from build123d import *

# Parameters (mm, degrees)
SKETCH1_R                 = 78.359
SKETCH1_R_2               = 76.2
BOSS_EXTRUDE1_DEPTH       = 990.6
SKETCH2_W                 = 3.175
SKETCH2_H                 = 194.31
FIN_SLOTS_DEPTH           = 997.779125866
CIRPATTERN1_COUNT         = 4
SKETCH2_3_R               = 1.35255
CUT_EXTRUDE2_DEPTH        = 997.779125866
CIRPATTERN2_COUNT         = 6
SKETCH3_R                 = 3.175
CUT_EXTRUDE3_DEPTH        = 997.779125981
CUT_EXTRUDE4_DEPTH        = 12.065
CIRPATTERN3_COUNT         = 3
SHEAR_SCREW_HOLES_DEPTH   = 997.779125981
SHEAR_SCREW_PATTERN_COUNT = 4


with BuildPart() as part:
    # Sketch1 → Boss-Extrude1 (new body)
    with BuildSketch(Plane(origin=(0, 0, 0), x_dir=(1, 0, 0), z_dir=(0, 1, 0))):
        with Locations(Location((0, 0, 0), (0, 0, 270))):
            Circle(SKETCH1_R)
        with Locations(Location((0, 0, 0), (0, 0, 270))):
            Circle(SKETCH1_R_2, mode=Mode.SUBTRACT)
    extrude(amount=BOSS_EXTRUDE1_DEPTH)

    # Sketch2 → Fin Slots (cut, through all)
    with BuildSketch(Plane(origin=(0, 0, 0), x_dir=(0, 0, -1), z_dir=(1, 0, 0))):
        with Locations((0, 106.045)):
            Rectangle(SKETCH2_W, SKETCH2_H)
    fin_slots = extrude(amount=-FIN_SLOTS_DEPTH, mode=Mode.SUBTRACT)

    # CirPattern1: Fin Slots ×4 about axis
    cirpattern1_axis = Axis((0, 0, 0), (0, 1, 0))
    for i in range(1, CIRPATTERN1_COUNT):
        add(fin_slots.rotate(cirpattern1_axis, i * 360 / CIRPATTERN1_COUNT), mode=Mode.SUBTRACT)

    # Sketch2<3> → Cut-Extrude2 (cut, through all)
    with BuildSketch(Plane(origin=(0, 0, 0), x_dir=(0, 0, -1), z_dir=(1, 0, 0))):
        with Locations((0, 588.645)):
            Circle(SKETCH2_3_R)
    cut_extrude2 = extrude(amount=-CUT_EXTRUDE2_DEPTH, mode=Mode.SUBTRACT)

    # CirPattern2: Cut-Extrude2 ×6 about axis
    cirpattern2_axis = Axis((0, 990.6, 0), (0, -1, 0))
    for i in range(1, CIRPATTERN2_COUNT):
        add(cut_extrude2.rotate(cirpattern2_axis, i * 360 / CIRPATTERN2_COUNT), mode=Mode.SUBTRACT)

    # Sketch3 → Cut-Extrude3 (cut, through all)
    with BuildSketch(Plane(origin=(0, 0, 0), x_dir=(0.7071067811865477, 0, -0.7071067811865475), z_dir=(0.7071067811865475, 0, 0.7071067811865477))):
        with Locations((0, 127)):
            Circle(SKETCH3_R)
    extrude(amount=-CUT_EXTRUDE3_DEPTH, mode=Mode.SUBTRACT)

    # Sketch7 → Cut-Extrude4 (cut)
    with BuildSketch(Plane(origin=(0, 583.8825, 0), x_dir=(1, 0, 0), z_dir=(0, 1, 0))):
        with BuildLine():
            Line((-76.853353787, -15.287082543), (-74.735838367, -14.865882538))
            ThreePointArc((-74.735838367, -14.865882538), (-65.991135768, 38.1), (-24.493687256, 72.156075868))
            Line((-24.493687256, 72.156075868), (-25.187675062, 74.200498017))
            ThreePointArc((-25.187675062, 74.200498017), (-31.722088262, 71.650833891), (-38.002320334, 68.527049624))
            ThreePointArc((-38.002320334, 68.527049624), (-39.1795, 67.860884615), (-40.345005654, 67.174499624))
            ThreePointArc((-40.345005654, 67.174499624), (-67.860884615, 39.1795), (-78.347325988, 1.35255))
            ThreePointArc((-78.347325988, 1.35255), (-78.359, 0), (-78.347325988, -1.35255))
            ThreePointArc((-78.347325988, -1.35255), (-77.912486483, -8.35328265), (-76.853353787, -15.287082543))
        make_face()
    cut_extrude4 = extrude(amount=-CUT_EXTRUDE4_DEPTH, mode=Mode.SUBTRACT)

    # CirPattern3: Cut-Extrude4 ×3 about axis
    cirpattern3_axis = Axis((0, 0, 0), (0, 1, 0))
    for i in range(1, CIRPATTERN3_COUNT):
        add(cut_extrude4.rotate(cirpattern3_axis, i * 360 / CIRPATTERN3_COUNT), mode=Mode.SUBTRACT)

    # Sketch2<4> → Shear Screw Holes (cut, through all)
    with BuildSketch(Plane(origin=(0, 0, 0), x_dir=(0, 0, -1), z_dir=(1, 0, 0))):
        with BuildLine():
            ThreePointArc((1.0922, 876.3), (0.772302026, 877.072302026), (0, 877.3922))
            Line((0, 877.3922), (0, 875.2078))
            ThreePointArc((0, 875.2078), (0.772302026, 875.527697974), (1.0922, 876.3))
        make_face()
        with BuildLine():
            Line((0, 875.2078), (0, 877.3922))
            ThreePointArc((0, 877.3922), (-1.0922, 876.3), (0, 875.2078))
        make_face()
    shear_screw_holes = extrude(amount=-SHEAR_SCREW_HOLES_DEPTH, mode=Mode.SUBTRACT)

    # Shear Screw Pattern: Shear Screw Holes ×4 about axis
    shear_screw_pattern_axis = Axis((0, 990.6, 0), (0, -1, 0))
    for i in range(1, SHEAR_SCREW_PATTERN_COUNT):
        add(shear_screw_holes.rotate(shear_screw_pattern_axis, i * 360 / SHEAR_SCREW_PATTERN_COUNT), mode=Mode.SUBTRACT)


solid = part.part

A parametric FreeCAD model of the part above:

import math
import FreeCAD as App
import Part
import Sketcher

V = App.Vector
Q = App.Units.Quantity


def add_polygon(sketch, points):
    """Adds a closed chain of lines whose ends are joined by coincident constraints."""
    first, n = sketch.GeometryCount, len(points)
    for a, b in zip(points, points[1:] + points[:1]):
        sketch.addGeometry(Part.LineSegment(App.Vector(*a, 0), App.Vector(*b, 0)), False)
    for i in range(n):
        sketch.addConstraint(Sketcher.Constraint("Coincident", first + i, 2, first + (i + 1) % n, 1))

doc = App.newDocument("Part")
body = doc.addObject("PartDesign::Body", "Body")

# Sketch on XZ plane
sketch1 = body.newObject("Sketcher::SketchObject", "Sketch")
sketch1.AttachmentSupport = (doc.getObject("XZ_Plane"), [""])
sketch1.MapMode = "FlatFace"
sketch1.addGeometry([
    Part.Circle(V(0, 0, 0), V(0, 0, 1), 78.359),
    Part.Circle(V(0, 0, 0), V(0, 0, 1), 76.2),
], False)
sketch1.addConstraint([
    Sketcher.Constraint("Coincident", 0, 3, -1, 1),
    Sketcher.Constraint("Coincident", 1, 3, -1, 1),
    Sketcher.Constraint("Diameter", 1, Q("6 in")),
    Sketcher.Constraint("Diameter", 0, Q("6.17 in")),
])
pad1 = body.newObject("PartDesign::Pad", "Pad")
pad1.Profile = sketch1
pad1.Length = Q("39 in")
pad1.Reversed = True

# Sketch on YZ plane
sketch2 = body.newObject("Sketcher::SketchObject", "Sketch001")
sketch2.AttachmentSupport = (doc.getObject("YZ_Plane"), [""])
sketch2.MapMode = "FlatFace"
add_polygon(sketch2, [(203.2, 1.5875), (8.89, 1.5875), (8.89, -1.5875), (203.2, -1.5875)])  # lines 0-3
sketch2.addConstraint([
    Sketcher.Constraint("Horizontal", 0),
    Sketcher.Constraint("Vertical", 1),
    Sketcher.Constraint("Horizontal", 2),
    Sketcher.Constraint("Vertical", 3),
    Sketcher.Constraint("DistanceX", -1, 1, 2, 2, Q("8 in")),
    Sketcher.Constraint("DistanceX", 0, 2, 0, 1, Q("7.65 in")),
    Sketcher.Constraint("DistanceY", 1, 2, 1, 1, Q("0.125 in")),
    Sketcher.Constraint("DistanceY", -1, 1, 0, 2, Q("0.0625 in")),
])
pocket1 = body.newObject("PartDesign::Pocket", "Pocket")
pocket1.Profile = sketch2
pocket1.Type = "ThroughAll"
doc.recompute()

polarpattern = body.newObject("PartDesign::PolarPattern", "PolarPattern")
polarpattern.Originals = [pocket1]
polarpattern.Axis = (doc.getObject("Y_Axis"), [""])
polarpattern.Angle = 360
polarpattern.Occurrences = 4
body.Tip = polarpattern

# Sketch on YZ plane
sketch3 = body.newObject("Sketcher::SketchObject", "Sketch002")
sketch3.AttachmentSupport = (doc.getObject("YZ_Plane"), [""])
sketch3.MapMode = "FlatFace"
sketch3.addGeometry(Part.Circle(V(588.645, 0, 0), V(0, 0, 1), 1.35255), False)
sketch3.addConstraint([
    Sketcher.Constraint("PointOnObject", 0, 3, -1),
    Sketcher.Constraint("Diameter", 0, Q("0.1065 in")),
    Sketcher.Constraint("DistanceX", -1, 1, 0, 3, Q("23.175 in")),
])
pocket2 = body.newObject("PartDesign::Pocket", "Pocket001")
pocket2.Profile = sketch3
pocket2.Type = "ThroughAll"
doc.recompute()

polarpattern2 = body.newObject("PartDesign::PolarPattern", "PolarPattern001")
polarpattern2.Originals = [pocket2]
polarpattern2.Axis = (doc.getObject("Y_Axis"), [""])
polarpattern2.Angle = 360
polarpattern2.Occurrences = 6
body.Tip = polarpattern2

# Sketch on an angled plane
sketch4 = body.newObject("Sketcher::SketchObject", "Sketch003")
sketch4.Placement = App.Placement(V(0, 0, 0), App.Rotation(V(0.707106781, 0, -0.707106781), V(0, 0.999999999, 0), V(0.707106781, 0, 0.707106781), "ZXY"))
sketch4.addGeometry(Part.Circle(V(0, 127, 0), V(0, 0, 1), 3.175), False)
sketch4.addConstraint([
    Sketcher.Constraint("PointOnObject", 0, 3, -2),
    Sketcher.Constraint("Diameter", 0, Q("0.25 in")),
    Sketcher.Constraint("DistanceY", -1, 1, 0, 3, Q("5 in")),
])
pocket3 = body.newObject("PartDesign::Pocket", "Pocket002")
pocket3.Profile = sketch4
pocket3.Type = "ThroughAll"

# Sketch on XZ plane
sketch5 = body.newObject("Sketcher::SketchObject", "Sketch004")
sketch5.AttachmentSupport = (doc.getObject("XZ_Plane"), [""])
sketch5.MapMode = "FlatFace"
sketch5.AttachmentOffset = App.Placement(V(0, 0, -22.9875 * 25.4), App.Rotation())
sketch5.addGeometry([
    Part.LineSegment(V(-76.853354, 15.287083, 0), V(-74.735838, 14.865883, 0)),  # 0
    Part.ArcOfCircle(Part.Circle(V(0, 0, 0), V(0, 0, 1), 76.2), math.radians(168.75), math.radians(251.25)),  # 1
    Part.LineSegment(V(-24.493687, -72.156076, 0), V(-25.187675, -74.200498, 0)),  # 2
    Part.ArcOfCircle(Part.Circle(V(0, 0, 0), V(0, 0, 1), 78.359), math.radians(-119.010972), math.radians(-108.75)),  # 3
    Part.ArcOfCircle(Part.Circle(V(-0.000001, -0.000001, 0), V(0, 0, 1), 78.358999), math.radians(-120.989028), math.radians(-119.010972)),  # 4
    Part.ArcOfCircle(Part.Circle(V(0, 0, 0), V(0, 0, 1), 78.359), math.radians(-179.010972), math.radians(-120.989028)),  # 5
    Part.ArcOfCircle(Part.Circle(V(-0.000001, 0, 0), V(0, 0, 1), 78.358999), math.radians(179.010972), math.radians(180.989028)),  # 6
    Part.ArcOfCircle(Part.Circle(V(0, 0, 0), V(0, 0, 1), 78.359), math.radians(168.75), math.radians(179.010972)),  # 7
], False)
sketch5.addConstraint([
    Sketcher.Constraint("Coincident", 0, 2, 1, 1),
    Sketcher.Constraint("Coincident", 1, 2, 2, 1),
    Sketcher.Constraint("Coincident", 2, 2, 3, 2),
    Sketcher.Constraint("Tangent", 3, 1, 4, 2),
    Sketcher.Constraint("Tangent", 4, 1, 5, 2),
    Sketcher.Constraint("Tangent", 5, 1, 6, 2),
    Sketcher.Constraint("Tangent", 6, 1, 7, 2),
    Sketcher.Constraint("Coincident", 7, 1, 0, 1),
    Sketcher.Constraint("Coincident", 1, 3, -1, 1),
    Sketcher.Constraint("Coincident", 3, 3, -1, 1),
    Sketcher.Constraint("Coincident", 5, 3, -1, 1),
    Sketcher.Constraint("Coincident", 7, 3, -1, 1),
    Sketcher.Constraint("Vertical", 5, 1, 6, 1),
    Sketcher.Constraint("Radius", 1, Q("3 in")),
    Sketcher.Constraint("Radius", 3, Q("3.085 in")),
    Sketcher.Constraint("Angle", 0, Q("-11.25 deg")),
    Sketcher.Constraint("Angle", 2, Q("-108.75 deg")),
    Sketcher.Constraint("DistanceY", 5, 1, 6, 1, Q("0.1065 in")),
    Sketcher.Constraint("DistanceY", 2, 2, -1, 1, 74.200498),
    Sketcher.Constraint("DistanceY", 4, 1, -1, 1, 67.1745),
    Sketcher.Constraint("DistanceX", 0, 2, -1, 1, 74.735838),
    Sketcher.Constraint("DistanceX", 3, 1, -1, 1, 38.00232),
])
pocket4 = body.newObject("PartDesign::Pocket", "Pocket003")
pocket4.Profile = sketch5
pocket4.Length = Q("0.475 in")
pocket4.Reversed = True
doc.recompute()

polarpattern3 = body.newObject("PartDesign::PolarPattern", "PolarPattern002")
polarpattern3.Originals = [pocket4]
polarpattern3.Axis = (doc.getObject("Y_Axis"), [""])
polarpattern3.Angle = 360
polarpattern3.Occurrences = 3
body.Tip = polarpattern3

# Sketch on YZ plane
sketch6 = body.newObject("Sketcher::SketchObject", "Sketch005")
sketch6.AttachmentSupport = (doc.getObject("YZ_Plane"), [""])
sketch6.MapMode = "FlatFace"
sketch6.addGeometry([
    Part.ArcOfCircle(Part.Circle(V(876.3, 0, 0), V(0, 0, 1), 1.0922), math.radians(-90), math.radians(0)),
    Part.ArcOfCircle(Part.Circle(V(876.3, 0, 0), V(0, 0, 1), 1.0922), math.radians(0), math.radians(180)),
    Part.ArcOfCircle(Part.Circle(V(876.3, 0, 0), V(0, 0, 1), 1.0922), math.radians(-180), math.radians(-90)),
], False)
sketch6.addConstraint([
    Sketcher.Constraint("Tangent", 0, 2, 1, 1),
    Sketcher.Constraint("Tangent", 1, 2, 2, 1),
    Sketcher.Constraint("Tangent", 2, 2, 0, 1),
    Sketcher.Constraint("PointOnObject", 0, 3, -1),
    Sketcher.Constraint("PointOnObject", 0, 2, -1),
    Sketcher.Constraint("PointOnObject", 1, 2, -1),
    Sketcher.Constraint("Vertical", 1, 3, 2, 2),
    Sketcher.Constraint("Radius", 0, Q("0.043 in")),
    Sketcher.Constraint("DistanceX", -1, 1, 0, 3, Q("34.5 in")),
])
pocket5 = body.newObject("PartDesign::Pocket", "Pocket004")
pocket5.Profile = sketch6
pocket5.Type = "ThroughAll"
doc.recompute()

polarpattern4 = body.newObject("PartDesign::PolarPattern", "PolarPattern003")
polarpattern4.Originals = [pocket5]
polarpattern4.Axis = (doc.getObject("Y_Axis"), [""])
polarpattern4.Angle = 360
polarpattern4.Occurrences = 4
body.Tip = polarpattern4

doc.recompute()
